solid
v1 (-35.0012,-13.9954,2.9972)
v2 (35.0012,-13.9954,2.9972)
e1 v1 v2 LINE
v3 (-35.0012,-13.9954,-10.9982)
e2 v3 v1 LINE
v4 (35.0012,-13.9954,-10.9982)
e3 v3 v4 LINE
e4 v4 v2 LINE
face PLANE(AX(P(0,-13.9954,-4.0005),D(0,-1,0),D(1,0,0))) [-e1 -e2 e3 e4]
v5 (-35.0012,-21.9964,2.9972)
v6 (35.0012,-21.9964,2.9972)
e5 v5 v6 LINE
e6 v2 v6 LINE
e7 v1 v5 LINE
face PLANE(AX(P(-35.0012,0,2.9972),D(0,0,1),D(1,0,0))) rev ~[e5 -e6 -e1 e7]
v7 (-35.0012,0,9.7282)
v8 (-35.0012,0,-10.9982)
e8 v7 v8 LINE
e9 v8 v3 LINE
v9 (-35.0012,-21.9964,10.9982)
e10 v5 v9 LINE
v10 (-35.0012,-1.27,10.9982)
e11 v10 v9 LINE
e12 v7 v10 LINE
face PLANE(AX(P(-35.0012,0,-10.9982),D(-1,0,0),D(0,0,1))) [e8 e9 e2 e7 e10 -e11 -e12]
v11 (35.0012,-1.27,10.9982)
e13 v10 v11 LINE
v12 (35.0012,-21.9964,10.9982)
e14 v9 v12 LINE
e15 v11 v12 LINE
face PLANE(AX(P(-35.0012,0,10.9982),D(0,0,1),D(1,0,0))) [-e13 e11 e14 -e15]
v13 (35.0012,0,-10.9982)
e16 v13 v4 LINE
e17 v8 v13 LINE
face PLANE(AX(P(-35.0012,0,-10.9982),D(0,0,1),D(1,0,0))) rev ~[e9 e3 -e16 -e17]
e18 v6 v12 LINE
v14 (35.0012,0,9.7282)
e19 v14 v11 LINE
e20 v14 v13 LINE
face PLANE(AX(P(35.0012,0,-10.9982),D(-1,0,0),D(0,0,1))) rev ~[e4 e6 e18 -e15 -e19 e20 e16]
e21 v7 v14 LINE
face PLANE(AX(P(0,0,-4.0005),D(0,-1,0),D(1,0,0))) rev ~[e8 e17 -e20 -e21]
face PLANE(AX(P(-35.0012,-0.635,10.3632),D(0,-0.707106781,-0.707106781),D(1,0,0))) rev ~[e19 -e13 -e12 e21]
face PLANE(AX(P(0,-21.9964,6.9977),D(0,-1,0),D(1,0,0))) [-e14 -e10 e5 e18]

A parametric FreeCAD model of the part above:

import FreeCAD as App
import Part
import Sketcher

V = App.Vector
Q = App.Units.Quantity


def edges_at(feature, points):
    """Names of the edges that pass closest to the given points."""
    edges = feature.Shape.Edges
    near = lambda p: min(range(len(edges)), key=lambda i: edges[i].distToShape(Part.Vertex(*p))[0])
    return sorted({f"Edge{near(p) + 1}" for p in points})


def add_polygon(sketch, points):
    """Adds a closed chain of lines whose ends are joined by coincident constraints."""
    first, n = sketch.GeometryCount, len(points)
    for a, b in zip(points, points[1:] + points[:1]):
        sketch.addGeometry(Part.LineSegment(App.Vector(*a, 0), App.Vector(*b, 0)), False)
    for i in range(n):
        sketch.addConstraint(Sketcher.Constraint("Coincident", first + i, 2, first + (i + 1) % n, 1))

doc = App.newDocument("Part")
body = doc.addObject("PartDesign::Body", "Body")

# Sketch on XZ plane
sketch1 = doc.addObject("Sketcher::SketchObject", "Sketch")
body.addObject(sketch1)
sketch1.AttachmentSupport = (doc.XZ_Plane, [""])
sketch1.MapMode = "FlatFace"
add_polygon(sketch1, [(-35.0012, 10.9982), (-35.0012, 2.9972), (35.0012, 2.9972), (35.0012, 10.9982)])  # lines 0-3
sketch1.addConstraint([
    Sketcher.Constraint("Vertical", 0),
    Sketcher.Constraint("Horizontal", 1),
    Sketcher.Constraint("Vertical", 2),
    Sketcher.Constraint("Horizontal", 3),
    Sketcher.Constraint("DistanceX", 1, 1, 1, 2, Q("2.756 in")),
    Sketcher.Constraint("DistanceY", 0, 2, 0, 1, Q("0.315 in")),
    Sketcher.Constraint("DistanceX", 0, 2, -1, 1, Q("1.378 in")),
    Sketcher.Constraint("DistanceY", -1, 1, 0, 2, Q("0.118 in")),
])
pad1 = doc.addObject("PartDesign::Pad", "Pad")
body.addObject(pad1)
pad1.Profile = sketch1
pad1.Length = Q("0.866 in")

# Sketch on XZ plane
sketch2 = doc.addObject("Sketcher::SketchObject", "Sketch001")
body.addObject(sketch2)
sketch2.AttachmentSupport = (doc.XZ_Plane, [""])
sketch2.MapMode = "FlatFace"
add_polygon(sketch2, [(-35.0012, 2.9972), (-35.0012, -10.9982), (35.0012, -10.9982), (35.0012, 2.9972)])  # lines 0-3
sketch2.addConstraint([
    Sketcher.Constraint("Vertical", 0),
    Sketcher.Constraint("Horizontal", 1),
    Sketcher.Constraint("Vertical", 2),
    Sketcher.Constraint("Horizontal", 3),
    Sketcher.Constraint("DistanceX", 1, 1, 1, 2, Q("2.756 in")),
    Sketcher.Constraint("DistanceY", 0, 2, 0, 1, Q("0.551 in")),
    Sketcher.Constraint("DistanceX", 0, 2, -1, 1, Q("1.378 in")),
    Sketcher.Constraint("DistanceY", 0, 2, -1, 1, Q("0.433 in")),
])
pad2 = doc.addObject("PartDesign::Pad", "Pad001")
body.addObject(pad2)
pad2.Profile = sketch2
pad2.Length = Q("0.551 in")
doc.recompute()

chamfer = doc.addObject("PartDesign::Chamfer", "Chamfer")
body.addObject(chamfer)
chamfer.Base = (pad2, edges_at(pad2, [(0, 0, 10.998)]))
chamfer.Size = Q("0.05 in")

doc.recompute()
